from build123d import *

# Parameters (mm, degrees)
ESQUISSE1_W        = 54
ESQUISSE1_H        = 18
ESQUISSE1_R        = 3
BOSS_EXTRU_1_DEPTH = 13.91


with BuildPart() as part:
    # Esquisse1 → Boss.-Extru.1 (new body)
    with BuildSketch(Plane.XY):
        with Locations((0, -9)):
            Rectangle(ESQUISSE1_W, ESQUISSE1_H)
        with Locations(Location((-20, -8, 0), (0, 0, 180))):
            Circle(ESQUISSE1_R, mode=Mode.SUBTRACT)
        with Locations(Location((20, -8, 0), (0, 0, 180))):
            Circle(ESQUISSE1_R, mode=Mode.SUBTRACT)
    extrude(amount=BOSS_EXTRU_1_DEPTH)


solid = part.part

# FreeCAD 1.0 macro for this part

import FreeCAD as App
import Part
import Sketcher

V = App.Vector

doc = App.newDocument("Part")
body = doc.addObject("PartDesign::Body", "Body")

# Sketch on XY plane
sketch1 = body.newObject("Sketcher::SketchObject", "Sketch")
sketch1.AttachmentSupport = (doc.getObject("XY_Plane"), [""])
sketch1.MapMode = "FlatFace"
sketch1.addGeometry([
    Part.LineSegment(V(-27, 0, 0), V(-27, -18, 0)),  # 0
    Part.LineSegment(V(-27, -18, 0), V(27, -18, 0)),  # 1
    Part.LineSegment(V(27, -18, 0), V(27, 0, 0)),  # 2
    Part.LineSegment(V(27, 0, 0), V(-27, 0, 0)),  # 3
    Part.Circle(V(-20, -8, 0), V(0, 0, 1), 3),  # 4
    Part.Circle(V(20, -8, 0), V(0, 0, 1), 3),  # 5
], False)
sketch1.addConstraint([
    Sketcher.Constraint("Coincident", 0, 2, 1, 1),
    Sketcher.Constraint("Coincident", 1, 2, 2, 1),
    Sketcher.Constraint("Coincident", 2, 2, 3, 1),
    Sketcher.Constraint("Coincident", 3, 2, 0, 1),
    Sketcher.Constraint("Vertical", 0),
    Sketcher.Constraint("Horizontal", 1),
    Sketcher.Constraint("Vertical", 2),
    Sketcher.Constraint("Horizontal", 3),
    Sketcher.Constraint("Equal", 4, 5),
    Sketcher.Constraint("Symmetric", 2, 2, 3, 2, -1, 1),
    Sketcher.Constraint("Symmetric", 4, 3, 5, 3, -2),
    Sketcher.Constraint("Diameter", 4, 6.0),
    Sketcher.Constraint("DistanceX", 1, 1, 1, 2, 54.0),
    Sketcher.Constraint("DistanceY", 0, 2, 0, 1, 18.0),
    Sketcher.Constraint("DistanceX", 4, 3, -1, 1, 20.0),
    Sketcher.Constraint("DistanceY", 4, 3, -1, 1, 8.0),
])
pad1 = body.newObject("PartDesign::Pad", "Pad")
pad1.Profile = sketch1
pad1.Length = 13.91

doc.recompute()
